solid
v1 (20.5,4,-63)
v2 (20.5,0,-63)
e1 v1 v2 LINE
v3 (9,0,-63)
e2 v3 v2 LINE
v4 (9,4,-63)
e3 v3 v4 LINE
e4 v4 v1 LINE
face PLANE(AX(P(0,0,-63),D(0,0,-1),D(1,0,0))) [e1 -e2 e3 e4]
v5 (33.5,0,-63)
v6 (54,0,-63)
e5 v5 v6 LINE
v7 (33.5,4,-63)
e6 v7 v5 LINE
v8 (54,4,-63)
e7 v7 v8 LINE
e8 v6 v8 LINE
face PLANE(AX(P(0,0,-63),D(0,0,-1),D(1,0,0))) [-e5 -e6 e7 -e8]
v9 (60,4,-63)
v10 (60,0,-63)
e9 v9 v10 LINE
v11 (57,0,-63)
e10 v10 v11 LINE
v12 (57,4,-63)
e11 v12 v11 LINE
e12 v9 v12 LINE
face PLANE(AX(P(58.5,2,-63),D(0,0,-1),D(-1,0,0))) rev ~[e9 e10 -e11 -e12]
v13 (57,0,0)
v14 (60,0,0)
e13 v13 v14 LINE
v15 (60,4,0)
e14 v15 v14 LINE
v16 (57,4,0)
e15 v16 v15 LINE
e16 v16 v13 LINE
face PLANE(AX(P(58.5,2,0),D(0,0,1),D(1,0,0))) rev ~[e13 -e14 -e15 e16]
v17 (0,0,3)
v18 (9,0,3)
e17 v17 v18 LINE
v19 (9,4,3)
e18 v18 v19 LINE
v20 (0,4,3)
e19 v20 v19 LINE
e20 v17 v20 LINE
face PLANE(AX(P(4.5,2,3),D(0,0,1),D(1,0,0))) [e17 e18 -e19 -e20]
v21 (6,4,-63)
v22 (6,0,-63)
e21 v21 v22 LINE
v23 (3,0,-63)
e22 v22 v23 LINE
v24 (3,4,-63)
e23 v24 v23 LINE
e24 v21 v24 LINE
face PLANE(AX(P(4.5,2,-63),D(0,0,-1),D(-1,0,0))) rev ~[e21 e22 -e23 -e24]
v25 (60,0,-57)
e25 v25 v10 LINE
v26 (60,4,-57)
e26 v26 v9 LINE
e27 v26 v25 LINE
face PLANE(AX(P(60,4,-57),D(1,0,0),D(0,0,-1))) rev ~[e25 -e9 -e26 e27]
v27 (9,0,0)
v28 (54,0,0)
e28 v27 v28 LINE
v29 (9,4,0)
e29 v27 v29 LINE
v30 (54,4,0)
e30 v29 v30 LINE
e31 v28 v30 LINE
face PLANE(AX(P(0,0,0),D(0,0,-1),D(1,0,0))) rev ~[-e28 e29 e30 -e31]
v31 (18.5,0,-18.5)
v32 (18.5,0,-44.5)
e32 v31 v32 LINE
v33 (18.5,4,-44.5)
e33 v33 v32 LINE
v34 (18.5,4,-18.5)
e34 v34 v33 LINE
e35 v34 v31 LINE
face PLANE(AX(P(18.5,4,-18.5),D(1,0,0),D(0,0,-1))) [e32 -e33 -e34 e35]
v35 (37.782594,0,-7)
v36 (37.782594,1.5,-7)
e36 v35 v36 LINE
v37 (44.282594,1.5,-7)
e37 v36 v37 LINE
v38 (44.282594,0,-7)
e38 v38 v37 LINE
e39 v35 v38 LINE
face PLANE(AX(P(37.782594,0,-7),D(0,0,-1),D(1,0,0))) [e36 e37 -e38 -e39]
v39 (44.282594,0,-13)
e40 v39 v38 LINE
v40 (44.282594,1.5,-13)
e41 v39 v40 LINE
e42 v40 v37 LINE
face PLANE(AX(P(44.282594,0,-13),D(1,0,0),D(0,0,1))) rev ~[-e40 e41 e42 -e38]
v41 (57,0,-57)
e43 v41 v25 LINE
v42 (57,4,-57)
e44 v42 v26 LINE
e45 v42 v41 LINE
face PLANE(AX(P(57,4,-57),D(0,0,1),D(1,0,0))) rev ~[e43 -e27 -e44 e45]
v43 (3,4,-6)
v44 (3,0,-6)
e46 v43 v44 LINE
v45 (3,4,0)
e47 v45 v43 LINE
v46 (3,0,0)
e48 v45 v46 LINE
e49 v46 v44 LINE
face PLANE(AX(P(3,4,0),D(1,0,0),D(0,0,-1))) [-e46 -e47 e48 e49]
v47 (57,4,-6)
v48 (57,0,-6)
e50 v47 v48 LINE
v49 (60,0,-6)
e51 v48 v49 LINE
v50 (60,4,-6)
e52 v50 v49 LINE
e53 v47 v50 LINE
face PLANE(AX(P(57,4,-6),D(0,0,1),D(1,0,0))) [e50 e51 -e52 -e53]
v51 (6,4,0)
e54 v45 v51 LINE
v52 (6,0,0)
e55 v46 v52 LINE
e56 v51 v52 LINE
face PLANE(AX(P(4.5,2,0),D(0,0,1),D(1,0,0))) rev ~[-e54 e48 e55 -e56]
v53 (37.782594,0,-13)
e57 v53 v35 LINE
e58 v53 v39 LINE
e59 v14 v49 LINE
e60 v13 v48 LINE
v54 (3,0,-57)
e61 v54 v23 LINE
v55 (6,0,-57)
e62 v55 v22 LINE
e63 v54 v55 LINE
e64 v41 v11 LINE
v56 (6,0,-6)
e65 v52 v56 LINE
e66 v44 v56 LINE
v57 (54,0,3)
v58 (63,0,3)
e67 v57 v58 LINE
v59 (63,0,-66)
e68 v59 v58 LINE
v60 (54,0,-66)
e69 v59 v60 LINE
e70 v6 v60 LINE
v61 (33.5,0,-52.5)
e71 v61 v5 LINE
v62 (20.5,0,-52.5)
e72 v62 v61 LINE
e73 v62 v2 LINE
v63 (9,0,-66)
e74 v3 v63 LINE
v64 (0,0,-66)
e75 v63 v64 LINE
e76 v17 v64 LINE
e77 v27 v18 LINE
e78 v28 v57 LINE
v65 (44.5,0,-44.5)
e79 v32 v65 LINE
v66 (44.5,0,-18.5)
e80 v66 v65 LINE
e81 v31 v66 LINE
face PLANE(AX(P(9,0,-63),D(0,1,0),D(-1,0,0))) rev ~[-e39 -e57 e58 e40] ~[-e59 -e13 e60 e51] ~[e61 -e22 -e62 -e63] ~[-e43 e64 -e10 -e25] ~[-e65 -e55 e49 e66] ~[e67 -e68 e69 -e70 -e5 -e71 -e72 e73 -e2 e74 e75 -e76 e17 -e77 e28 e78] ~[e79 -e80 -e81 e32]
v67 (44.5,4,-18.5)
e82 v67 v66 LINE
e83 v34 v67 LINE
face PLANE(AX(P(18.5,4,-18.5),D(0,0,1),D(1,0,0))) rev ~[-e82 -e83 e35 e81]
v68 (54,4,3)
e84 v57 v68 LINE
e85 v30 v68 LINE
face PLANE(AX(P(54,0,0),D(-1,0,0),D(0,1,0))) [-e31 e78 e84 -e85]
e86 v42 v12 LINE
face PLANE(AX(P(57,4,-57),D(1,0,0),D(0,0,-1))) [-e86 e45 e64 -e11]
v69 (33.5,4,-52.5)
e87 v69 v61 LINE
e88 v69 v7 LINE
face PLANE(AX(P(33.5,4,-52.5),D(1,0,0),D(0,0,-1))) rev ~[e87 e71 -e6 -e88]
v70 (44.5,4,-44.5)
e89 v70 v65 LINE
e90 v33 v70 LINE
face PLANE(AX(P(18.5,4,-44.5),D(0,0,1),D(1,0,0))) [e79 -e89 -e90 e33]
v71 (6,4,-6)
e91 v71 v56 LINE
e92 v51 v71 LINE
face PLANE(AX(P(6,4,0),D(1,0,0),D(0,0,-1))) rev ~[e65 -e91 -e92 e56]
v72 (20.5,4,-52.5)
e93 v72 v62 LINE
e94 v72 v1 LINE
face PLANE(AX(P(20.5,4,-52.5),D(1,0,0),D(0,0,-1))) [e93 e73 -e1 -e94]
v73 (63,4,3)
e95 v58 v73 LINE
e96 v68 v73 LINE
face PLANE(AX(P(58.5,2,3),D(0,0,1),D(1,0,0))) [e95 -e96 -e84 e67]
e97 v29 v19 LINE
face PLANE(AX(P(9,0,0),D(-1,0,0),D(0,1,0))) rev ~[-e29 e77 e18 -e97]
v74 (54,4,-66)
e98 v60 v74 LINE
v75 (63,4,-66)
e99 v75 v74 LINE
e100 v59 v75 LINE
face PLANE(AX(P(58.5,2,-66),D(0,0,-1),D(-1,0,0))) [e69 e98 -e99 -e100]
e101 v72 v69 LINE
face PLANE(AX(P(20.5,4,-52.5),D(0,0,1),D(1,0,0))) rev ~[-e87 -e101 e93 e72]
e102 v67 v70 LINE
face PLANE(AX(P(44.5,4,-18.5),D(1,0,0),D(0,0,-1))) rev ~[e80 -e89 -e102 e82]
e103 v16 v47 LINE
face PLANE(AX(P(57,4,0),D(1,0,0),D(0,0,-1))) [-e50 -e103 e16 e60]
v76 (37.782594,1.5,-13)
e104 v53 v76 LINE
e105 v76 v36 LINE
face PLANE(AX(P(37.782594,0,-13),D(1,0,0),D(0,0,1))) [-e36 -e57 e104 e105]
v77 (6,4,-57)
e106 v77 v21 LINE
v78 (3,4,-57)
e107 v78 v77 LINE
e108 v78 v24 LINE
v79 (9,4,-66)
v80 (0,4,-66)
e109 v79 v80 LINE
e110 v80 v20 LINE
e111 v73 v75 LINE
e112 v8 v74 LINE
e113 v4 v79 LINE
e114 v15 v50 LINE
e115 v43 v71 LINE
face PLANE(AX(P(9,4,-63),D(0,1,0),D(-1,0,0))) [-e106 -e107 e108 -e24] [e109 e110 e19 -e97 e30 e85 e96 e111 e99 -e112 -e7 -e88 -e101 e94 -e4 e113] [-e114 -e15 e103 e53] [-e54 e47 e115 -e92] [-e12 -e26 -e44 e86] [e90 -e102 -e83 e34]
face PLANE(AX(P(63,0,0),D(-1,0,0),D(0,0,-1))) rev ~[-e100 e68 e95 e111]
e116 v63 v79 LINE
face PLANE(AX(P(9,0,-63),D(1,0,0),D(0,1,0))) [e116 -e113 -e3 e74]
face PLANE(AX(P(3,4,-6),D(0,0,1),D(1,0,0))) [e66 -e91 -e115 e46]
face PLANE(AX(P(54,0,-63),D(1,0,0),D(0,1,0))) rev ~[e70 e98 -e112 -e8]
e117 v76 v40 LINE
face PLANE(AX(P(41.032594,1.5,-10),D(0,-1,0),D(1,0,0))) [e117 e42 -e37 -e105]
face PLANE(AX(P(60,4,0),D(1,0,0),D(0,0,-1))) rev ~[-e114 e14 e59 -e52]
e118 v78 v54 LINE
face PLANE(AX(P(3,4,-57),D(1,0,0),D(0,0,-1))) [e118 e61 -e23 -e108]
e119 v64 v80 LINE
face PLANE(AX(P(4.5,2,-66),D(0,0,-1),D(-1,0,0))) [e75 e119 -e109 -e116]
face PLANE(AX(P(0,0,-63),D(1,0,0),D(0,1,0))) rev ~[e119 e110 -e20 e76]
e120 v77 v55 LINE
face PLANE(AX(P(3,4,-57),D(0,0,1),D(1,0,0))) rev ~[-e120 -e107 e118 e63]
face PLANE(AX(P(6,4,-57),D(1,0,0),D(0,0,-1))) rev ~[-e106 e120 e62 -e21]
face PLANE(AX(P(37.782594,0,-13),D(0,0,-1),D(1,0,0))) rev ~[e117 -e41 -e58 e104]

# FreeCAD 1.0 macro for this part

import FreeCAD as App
import Part
import Sketcher

doc = App.newDocument("Part")
body = doc.addObject("PartDesign::Body", "Body")

sketch1 = body.newObject("Sketcher::SketchObject", "Sketch")
sketch1.AttachmentSupport = (doc.getObject("XZ_Plane"), [""])
sketch1.MapMode = "FlatFace"
sketch1.addGeometry([
    Part.LineSegment(App.Vector(0, -63, 0), App.Vector(0, 0, 0)),
    Part.LineSegment(App.Vector(0, 0, 0), App.Vector(63, 0, 0)),
    Part.LineSegment(App.Vector(63, 0, 0), App.Vector(63, -63, 0)),
    Part.LineSegment(App.Vector(63, -63, 0), App.Vector(0, -63, 0)),
], False)
sketch1.addConstraint([
    Sketcher.Constraint("Coincident", 0, 2, 1, 1),
    Sketcher.Constraint("Coincident", 1, 2, 2, 1),
    Sketcher.Constraint("Coincident", 2, 2, 3, 1),
    Sketcher.Constraint("Coincident", 3, 2, 0, 1),
    Sketcher.Constraint("Vertical", 0),
    Sketcher.Constraint("Horizontal", 1),
    Sketcher.Constraint("Vertical", 2),
    Sketcher.Constraint("Horizontal", 3),
    Sketcher.Constraint("Coincident", 0, 2, -1, 1),
    Sketcher.Constraint("Equal", 3, 0),
    Sketcher.Constraint("DistanceX", 1, 1, 1, 2, 63.0),
])
pad1 = body.newObject("PartDesign::Pad", "Pad")
pad1.Profile = sketch1
pad1.Length = 4
pad1.Reversed = True

sketch2 = body.newObject("Sketcher::SketchObject", "Sketch001")
sketch2.AttachmentSupport = (doc.getObject("XZ_Plane"), [""])
sketch2.MapMode = "FlatFace"
sketch2.AttachmentOffset = App.Placement(App.Vector(0, 0, -4), App.Rotation())
sketch2.addGeometry([
    Part.LineSegment(App.Vector(3, -6, 0), App.Vector(3, 0, 0)),
    Part.LineSegment(App.Vector(3, 0, 0), App.Vector(6, 0, 0)),
    Part.LineSegment(App.Vector(6, 0, 0), App.Vector(6, -6, 0)),
    Part.LineSegment(App.Vector(6, -6, 0), App.Vector(3, -6, 0)),
    Part.LineSegment(App.Vector(57, -6, 0), App.Vector(57, 0, 0)),
    Part.LineSegment(App.Vector(57, 0, 0), App.Vector(60, 0, 0)),
    Part.LineSegment(App.Vector(60, 0, 0), App.Vector(60, -6, 0)),
    Part.LineSegment(App.Vector(60, -6, 0), App.Vector(57, -6, 0)),
    Part.LineSegment(App.Vector(57, -63, 0), App.Vector(57, -57, 0)),
    Part.LineSegment(App.Vector(57, -57, 0), App.Vector(60, -57, 0)),
    Part.LineSegment(App.Vector(60, -57, 0), App.Vector(60, -63, 0)),
    Part.LineSegment(App.Vector(60, -63, 0), App.Vector(57, -63, 0)),
    Part.LineSegment(App.Vector(3, -63, 0), App.Vector(3, -57, 0)),
    Part.LineSegment(App.Vector(3, -57, 0), App.Vector(6, -57, 0)),
    Part.LineSegment(App.Vector(6, -57, 0), App.Vector(6, -63, 0)),
    Part.LineSegment(App.Vector(6, -63, 0), App.Vector(3, -63, 0)),
], False)
sketch2.addConstraint([
    Sketcher.Constraint("Coincident", 0, 2, 1, 1),
    Sketcher.Constraint("Coincident", 1, 2, 2, 1),
    Sketcher.Constraint("Coincident", 2, 2, 3, 1),
    Sketcher.Constraint("Coincident", 3, 2, 0, 1),
    Sketcher.Constraint("Coincident", 4, 2, 5, 1),
    Sketcher.Constraint("Coincident", 5, 2, 6, 1),
    Sketcher.Constraint("Coincident", 6, 2, 7, 1),
    Sketcher.Constraint("Coincident", 7, 2, 4, 1),
    Sketcher.Constraint("Coincident", 8, 2, 9, 1),
    Sketcher.Constraint("Coincident", 9, 2, 10, 1),
    Sketcher.Constraint("Coincident", 10, 2, 11, 1),
    Sketcher.Constraint("Coincident", 11, 2, 8, 1),
    Sketcher.Constraint("Coincident", 12, 2, 13, 1),
    Sketcher.Constraint("Coincident", 13, 2, 14, 1),
    Sketcher.Constraint("Coincident", 14, 2, 15, 1),
    Sketcher.Constraint("Coincident", 15, 2, 12, 1),
    Sketcher.Constraint("Vertical", 0),
    Sketcher.Constraint("Horizontal", 1),
    Sketcher.Constraint("Vertical", 2),
    Sketcher.Constraint("Horizontal", 3),
    Sketcher.Constraint("Vertical", 4),
    Sketcher.Constraint("Horizontal", 5),
    Sketcher.Constraint("Vertical", 6),
    Sketcher.Constraint("Horizontal", 7),
    Sketcher.Constraint("Vertical", 8),
    Sketcher.Constraint("Horizontal", 9),
    Sketcher.Constraint("Vertical", 10),
    Sketcher.Constraint("Horizontal", 11),
    Sketcher.Constraint("Vertical", 12),
    Sketcher.Constraint("Horizontal", 13),
    Sketcher.Constraint("Vertical", 14),
    Sketcher.Constraint("Horizontal", 15),
    Sketcher.Constraint("PointOnObject", 0, 2, -1),
    Sketcher.Constraint("PointOnObject", 4, 2, -1),
    Sketcher.Constraint("Horizontal", 3, 2, 6, 2),
    Sketcher.Constraint("Horizontal", 9, 2, 12, 2),
    Sketcher.Constraint("Horizontal", 11, 2, 14, 2),
    Sketcher.Constraint("Vertical", 7, 2, 8, 2),
    Sketcher.Constraint("Vertical", 6, 2, 9, 2),
    Sketcher.Constraint("Vertical", 3, 2, 12, 2),
    Sketcher.Constraint("Vertical", 2, 2, 13, 2),
    Sketcher.Constraint("Equal", 3, 5),
    Sketcher.Constraint("Equal", 6, 8),
    Sketcher.Constraint("DistanceX", 1, 1, 1, 2, 3.0),
    Sketcher.Constraint("DistanceY", 0, 1, 0, 2, 6.0),
    Sketcher.Constraint("DistanceX", -1, 1, 0, 2, 3.0),
    Sketcher.Constraint("DistanceX", -1, 1, 4, 2, 57.0),
    Sketcher.Constraint("DistanceY", 8, 2, -1, 1, 57.0),
])
pocket1 = body.newObject("PartDesign::Pocket", "Pocket")
pocket1.Profile = sketch2
pocket1.Length = 4
pocket1.Reversed = True

sketch3 = body.newObject("Sketcher::SketchObject", "Sketch002")
sketch3.AttachmentSupport = (doc.getObject("XY_Plane"), [""])
sketch3.MapMode = "FlatFace"
sketch3.addGeometry([
    Part.LineSegment(App.Vector(0, 4, 0), App.Vector(0, 0, 0)),
    Part.LineSegment(App.Vector(0, 0, 0), App.Vector(9, 0, 0)),
    Part.LineSegment(App.Vector(9, 0, 0), App.Vector(9, 4, 0)),
    Part.LineSegment(App.Vector(9, 4, 0), App.Vector(0, 4, 0)),
    Part.LineSegment(App.Vector(54, 4, 0), App.Vector(54, 0, 0)),
    Part.LineSegment(App.Vector(54, 0, 0), App.Vector(63, 0, 0)),
    Part.LineSegment(App.Vector(63, 0, 0), App.Vector(63, 4, 0)),
    Part.LineSegment(App.Vector(63, 4, 0), App.Vector(54, 4, 0)),
], False)
sketch3.addConstraint([
    Sketcher.Constraint("Coincident", 0, 2, 1, 1),
    Sketcher.Constraint("Coincident", 1, 2, 2, 1),
    Sketcher.Constraint("Coincident", 2, 2, 3, 1),
    Sketcher.Constraint("Coincident", 3, 2, 0, 1),
    Sketcher.Constraint("Coincident", 4, 2, 5, 1),
    Sketcher.Constraint("Coincident", 5, 2, 6, 1),
    Sketcher.Constraint("Coincident", 6, 2, 7, 1),
    Sketcher.Constraint("Coincident", 7, 2, 4, 1),
    Sketcher.Constraint("Vertical", 0),
    Sketcher.Constraint("Horizontal", 1),
    Sketcher.Constraint("Vertical", 2),
    Sketcher.Constraint("Horizontal", 3),
    Sketcher.Constraint("Vertical", 4),
    Sketcher.Constraint("Horizontal", 5),
    Sketcher.Constraint("Vertical", 6),
    Sketcher.Constraint("Horizontal", 7),
    Sketcher.Constraint("Coincident", 0, 2, -1, 1),
    Sketcher.Constraint("PointOnObject", 4, 2, -1),
    Sketcher.Constraint("Horizontal", 3, 2, 6, 2),
    Sketcher.Constraint("Equal", 3, 5),
    Sketcher.Constraint("DistanceX", 1, 1, 1, 2, 9.0),
    Sketcher.Constraint("DistanceY", 0, 2, 0, 1, 4.0),
    Sketcher.Constraint("DistanceX", -1, 1, 4, 2, 54.0),
])
pad2 = body.newObject("PartDesign::Pad", "Pad001")
pad2.Profile = sketch3
pad2.Length = 3

sketch4 = body.newObject("Sketcher::SketchObject", "Sketch003")
sketch4.AttachmentSupport = (doc.getObject("XY_Plane"), [""])
sketch4.MapMode = "FlatFace"
sketch4.AttachmentOffset = App.Placement(App.Vector(0, 0, -63), App.Rotation())
sketch4.addGeometry([
    Part.LineSegment(App.Vector(9, 4, 0), App.Vector(9, 0, 0)),
    Part.LineSegment(App.Vector(9, 0, 0), App.Vector(0, 0, 0)),
    Part.LineSegment(App.Vector(0, 0, 0), App.Vector(0, 4, 0)),
    Part.LineSegment(App.Vector(0, 4, 0), App.Vector(9, 4, 0)),
    Part.LineSegment(App.Vector(63, 4, 0), App.Vector(63, 0, 0)),
    Part.LineSegment(App.Vector(63, 0, 0), App.Vector(54, 0, 0)),
    Part.LineSegment(App.Vector(54, 0, 0), App.Vector(54, 4, 0)),
    Part.LineSegment(App.Vector(54, 4, 0), App.Vector(63, 4, 0)),
], False)
sketch4.addConstraint([
    Sketcher.Constraint("Coincident", 0, 2, 1, 1),
    Sketcher.Constraint("Coincident", 1, 2, 2, 1),
    Sketcher.Constraint("Coincident", 2, 2, 3, 1),
    Sketcher.Constraint("Coincident", 3, 2, 0, 1),
    Sketcher.Constraint("Coincident", 4, 2, 5, 1),
    Sketcher.Constraint("Coincident", 5, 2, 6, 1),
    Sketcher.Constraint("Coincident", 6, 2, 7, 1),
    Sketcher.Constraint("Coincident", 7, 2, 4, 1),
    Sketcher.Constraint("Vertical", 0),
    Sketcher.Constraint("Horizontal", 1),
    Sketcher.Constraint("Vertical", 2),
    Sketcher.Constraint("Horizontal", 3),
    Sketcher.Constraint("Vertical", 4),
    Sketcher.Constraint("Horizontal", 5),
    Sketcher.Constraint("Vertical", 6),
    Sketcher.Constraint("Horizontal", 7),
    Sketcher.Constraint("Coincident", 1, 2, -1, 1),
    Sketcher.Constraint("PointOnObject", 4, 2, -1),
    Sketcher.Constraint("Horizontal", 3, 2, 6, 2),
    Sketcher.Constraint("Equal", 3, 5),
    Sketcher.Constraint("DistanceX", 1, 2, 1, 1, 9.0),
    Sketcher.Constraint("DistanceY", 0, 2, 0, 1, 4.0),
    Sketcher.Constraint("DistanceX", -1, 1, 4, 2, 63.0),
])
pad3 = body.newObject("PartDesign::Pad", "Pad002")
pad3.Profile = sketch4
pad3.Length = 3
pad3.Reversed = True

sketch5 = body.newObject("Sketcher::SketchObject", "Sketch004")
sketch5.AttachmentSupport = (doc.getObject("XZ_Plane"), [""])
sketch5.MapMode = "FlatFace"
sketch5.AttachmentOffset = App.Placement(App.Vector(0, 0, -4), App.Rotation())
sketch5.addGeometry([
    Part.LineSegment(App.Vector(18, -44, 0), App.Vector(18, -18, 0)),
    Part.LineSegment(App.Vector(18, -18, 0), App.Vector(44, -18, 0)),
    Part.LineSegment(App.Vector(44, -18, 0), App.Vector(44, -44, 0)),
    Part.LineSegment(App.Vector(44, -44, 0), App.Vector(18, -44, 0)),
], False)
sketch5.addConstraint([
    Sketcher.Constraint("Coincident", 0, 2, 1, 1),
    Sketcher.Constraint("Coincident", 1, 2, 2, 1),
    Sketcher.Constraint("Coincident", 2, 2, 3, 1),
    Sketcher.Constraint("Coincident", 3, 2, 0, 1),
    Sketcher.Constraint("Vertical", 0),
    Sketcher.Constraint("Horizontal", 1),
    Sketcher.Constraint("Vertical", 2),
    Sketcher.Constraint("Horizontal", 3),
    Sketcher.Constraint("Equal", 3, 0),
    Sketcher.Constraint("DistanceX", 1, 1, 1, 2, 26.0),
    Sketcher.Constraint("DistanceX", -1, 1, 0, 2, 18.5),
    Sketcher.Constraint("DistanceY", 0, 2, -1, 1, 18.5),
])
pocket2 = body.newObject("PartDesign::Pocket", "Pocket001")
pocket2.Profile = sketch5
pocket2.Length = 4
pocket2.Reversed = True

sketch6 = body.newObject("Sketcher::SketchObject", "Sketch005")
sketch6.AttachmentSupport = (doc.getObject("XZ_Plane"), [""])
sketch6.MapMode = "FlatFace"
sketch6.AttachmentOffset = App.Placement(App.Vector(0, 0, -4), App.Rotation())
sketch6.addGeometry([
    Part.LineSegment(App.Vector(20, -63, 0), App.Vector(20, -52, 0)),
    Part.LineSegment(App.Vector(20, -52, 0), App.Vector(34, -52, 0)),
    Part.LineSegment(App.Vector(34, -52, 0), App.Vector(34, -63, 0)),
    Part.LineSegment(App.Vector(34, -63, 0), App.Vector(20, -63, 0)),
], False)
sketch6.addConstraint([
    Sketcher.Constraint("Coincident", 0, 2, 1, 1),
    Sketcher.Constraint("Coincident", 1, 2, 2, 1),
    Sketcher.Constraint("Coincident", 2, 2, 3, 1),
    Sketcher.Constraint("Coincident", 3, 2, 0, 1),
    Sketcher.Constraint("Vertical", 0),
    Sketcher.Constraint("Horizontal", 1),
    Sketcher.Constraint("Vertical", 2),
    Sketcher.Constraint("Horizontal", 3),
    Sketcher.Constraint("DistanceX", 1, 1, 1, 2, 13.0),
    Sketcher.Constraint("DistanceY", 0, 1, 0, 2, 10.5),
    Sketcher.Constraint("DistanceY", 2, 2, -1, 1, 63.0),
    Sketcher.Constraint("DistanceX", -1, 1, 0, 2, 20.5),
])
pocket3 = body.newObject("PartDesign::Pocket", "Pocket002")
pocket3.Profile = sketch6
pocket3.Length = 4
pocket3.Reversed = True

sketch7 = body.newObject("Sketcher::SketchObject", "Sketch006")
sketch7.AttachmentSupport = (doc.getObject("XZ_Plane"), [""])
sketch7.MapMode = "FlatFace"
sketch7.addGeometry([
    Part.LineSegment(App.Vector(38, -7, 0), App.Vector(38, -13, 0)),
    Part.LineSegment(App.Vector(38, -13, 0), App.Vector(44, -13, 0)),
    Part.LineSegment(App.Vector(44, -13, 0), App.Vector(44, -7, 0)),
    Part.LineSegment(App.Vector(44, -7, 0), App.Vector(38, -7, 0)),
], False)
sketch7.addConstraint([
    Sketcher.Constraint("Coincident", 0, 2, 1, 1),
    Sketcher.Constraint("Coincident", 1, 2, 2, 1),
    Sketcher.Constraint("Coincident", 2, 2, 3, 1),
    Sketcher.Constraint("Coincident", 3, 2, 0, 1),
    Sketcher.Constraint("Vertical", 0),
    Sketcher.Constraint("Horizontal", 1),
    Sketcher.Constraint("Vertical", 2),
    Sketcher.Constraint("Horizontal", 3),
    Sketcher.Constraint("DistanceY", 0, 2, 0, 1, 6.0),
    Sketcher.Constraint("DistanceX", 1, 1, 1, 2, 6.5),
    Sketcher.Constraint("DistanceY", 0, 2, -1, 1, 13.0),
    Sketcher.Constraint("DistanceX", -1, 1, 0, 2, 37.782594),
])
pocket4 = body.newObject("PartDesign::Pocket", "Pocket003")
pocket4.Profile = sketch7
pocket4.Length = 1.5

doc.recompute()
